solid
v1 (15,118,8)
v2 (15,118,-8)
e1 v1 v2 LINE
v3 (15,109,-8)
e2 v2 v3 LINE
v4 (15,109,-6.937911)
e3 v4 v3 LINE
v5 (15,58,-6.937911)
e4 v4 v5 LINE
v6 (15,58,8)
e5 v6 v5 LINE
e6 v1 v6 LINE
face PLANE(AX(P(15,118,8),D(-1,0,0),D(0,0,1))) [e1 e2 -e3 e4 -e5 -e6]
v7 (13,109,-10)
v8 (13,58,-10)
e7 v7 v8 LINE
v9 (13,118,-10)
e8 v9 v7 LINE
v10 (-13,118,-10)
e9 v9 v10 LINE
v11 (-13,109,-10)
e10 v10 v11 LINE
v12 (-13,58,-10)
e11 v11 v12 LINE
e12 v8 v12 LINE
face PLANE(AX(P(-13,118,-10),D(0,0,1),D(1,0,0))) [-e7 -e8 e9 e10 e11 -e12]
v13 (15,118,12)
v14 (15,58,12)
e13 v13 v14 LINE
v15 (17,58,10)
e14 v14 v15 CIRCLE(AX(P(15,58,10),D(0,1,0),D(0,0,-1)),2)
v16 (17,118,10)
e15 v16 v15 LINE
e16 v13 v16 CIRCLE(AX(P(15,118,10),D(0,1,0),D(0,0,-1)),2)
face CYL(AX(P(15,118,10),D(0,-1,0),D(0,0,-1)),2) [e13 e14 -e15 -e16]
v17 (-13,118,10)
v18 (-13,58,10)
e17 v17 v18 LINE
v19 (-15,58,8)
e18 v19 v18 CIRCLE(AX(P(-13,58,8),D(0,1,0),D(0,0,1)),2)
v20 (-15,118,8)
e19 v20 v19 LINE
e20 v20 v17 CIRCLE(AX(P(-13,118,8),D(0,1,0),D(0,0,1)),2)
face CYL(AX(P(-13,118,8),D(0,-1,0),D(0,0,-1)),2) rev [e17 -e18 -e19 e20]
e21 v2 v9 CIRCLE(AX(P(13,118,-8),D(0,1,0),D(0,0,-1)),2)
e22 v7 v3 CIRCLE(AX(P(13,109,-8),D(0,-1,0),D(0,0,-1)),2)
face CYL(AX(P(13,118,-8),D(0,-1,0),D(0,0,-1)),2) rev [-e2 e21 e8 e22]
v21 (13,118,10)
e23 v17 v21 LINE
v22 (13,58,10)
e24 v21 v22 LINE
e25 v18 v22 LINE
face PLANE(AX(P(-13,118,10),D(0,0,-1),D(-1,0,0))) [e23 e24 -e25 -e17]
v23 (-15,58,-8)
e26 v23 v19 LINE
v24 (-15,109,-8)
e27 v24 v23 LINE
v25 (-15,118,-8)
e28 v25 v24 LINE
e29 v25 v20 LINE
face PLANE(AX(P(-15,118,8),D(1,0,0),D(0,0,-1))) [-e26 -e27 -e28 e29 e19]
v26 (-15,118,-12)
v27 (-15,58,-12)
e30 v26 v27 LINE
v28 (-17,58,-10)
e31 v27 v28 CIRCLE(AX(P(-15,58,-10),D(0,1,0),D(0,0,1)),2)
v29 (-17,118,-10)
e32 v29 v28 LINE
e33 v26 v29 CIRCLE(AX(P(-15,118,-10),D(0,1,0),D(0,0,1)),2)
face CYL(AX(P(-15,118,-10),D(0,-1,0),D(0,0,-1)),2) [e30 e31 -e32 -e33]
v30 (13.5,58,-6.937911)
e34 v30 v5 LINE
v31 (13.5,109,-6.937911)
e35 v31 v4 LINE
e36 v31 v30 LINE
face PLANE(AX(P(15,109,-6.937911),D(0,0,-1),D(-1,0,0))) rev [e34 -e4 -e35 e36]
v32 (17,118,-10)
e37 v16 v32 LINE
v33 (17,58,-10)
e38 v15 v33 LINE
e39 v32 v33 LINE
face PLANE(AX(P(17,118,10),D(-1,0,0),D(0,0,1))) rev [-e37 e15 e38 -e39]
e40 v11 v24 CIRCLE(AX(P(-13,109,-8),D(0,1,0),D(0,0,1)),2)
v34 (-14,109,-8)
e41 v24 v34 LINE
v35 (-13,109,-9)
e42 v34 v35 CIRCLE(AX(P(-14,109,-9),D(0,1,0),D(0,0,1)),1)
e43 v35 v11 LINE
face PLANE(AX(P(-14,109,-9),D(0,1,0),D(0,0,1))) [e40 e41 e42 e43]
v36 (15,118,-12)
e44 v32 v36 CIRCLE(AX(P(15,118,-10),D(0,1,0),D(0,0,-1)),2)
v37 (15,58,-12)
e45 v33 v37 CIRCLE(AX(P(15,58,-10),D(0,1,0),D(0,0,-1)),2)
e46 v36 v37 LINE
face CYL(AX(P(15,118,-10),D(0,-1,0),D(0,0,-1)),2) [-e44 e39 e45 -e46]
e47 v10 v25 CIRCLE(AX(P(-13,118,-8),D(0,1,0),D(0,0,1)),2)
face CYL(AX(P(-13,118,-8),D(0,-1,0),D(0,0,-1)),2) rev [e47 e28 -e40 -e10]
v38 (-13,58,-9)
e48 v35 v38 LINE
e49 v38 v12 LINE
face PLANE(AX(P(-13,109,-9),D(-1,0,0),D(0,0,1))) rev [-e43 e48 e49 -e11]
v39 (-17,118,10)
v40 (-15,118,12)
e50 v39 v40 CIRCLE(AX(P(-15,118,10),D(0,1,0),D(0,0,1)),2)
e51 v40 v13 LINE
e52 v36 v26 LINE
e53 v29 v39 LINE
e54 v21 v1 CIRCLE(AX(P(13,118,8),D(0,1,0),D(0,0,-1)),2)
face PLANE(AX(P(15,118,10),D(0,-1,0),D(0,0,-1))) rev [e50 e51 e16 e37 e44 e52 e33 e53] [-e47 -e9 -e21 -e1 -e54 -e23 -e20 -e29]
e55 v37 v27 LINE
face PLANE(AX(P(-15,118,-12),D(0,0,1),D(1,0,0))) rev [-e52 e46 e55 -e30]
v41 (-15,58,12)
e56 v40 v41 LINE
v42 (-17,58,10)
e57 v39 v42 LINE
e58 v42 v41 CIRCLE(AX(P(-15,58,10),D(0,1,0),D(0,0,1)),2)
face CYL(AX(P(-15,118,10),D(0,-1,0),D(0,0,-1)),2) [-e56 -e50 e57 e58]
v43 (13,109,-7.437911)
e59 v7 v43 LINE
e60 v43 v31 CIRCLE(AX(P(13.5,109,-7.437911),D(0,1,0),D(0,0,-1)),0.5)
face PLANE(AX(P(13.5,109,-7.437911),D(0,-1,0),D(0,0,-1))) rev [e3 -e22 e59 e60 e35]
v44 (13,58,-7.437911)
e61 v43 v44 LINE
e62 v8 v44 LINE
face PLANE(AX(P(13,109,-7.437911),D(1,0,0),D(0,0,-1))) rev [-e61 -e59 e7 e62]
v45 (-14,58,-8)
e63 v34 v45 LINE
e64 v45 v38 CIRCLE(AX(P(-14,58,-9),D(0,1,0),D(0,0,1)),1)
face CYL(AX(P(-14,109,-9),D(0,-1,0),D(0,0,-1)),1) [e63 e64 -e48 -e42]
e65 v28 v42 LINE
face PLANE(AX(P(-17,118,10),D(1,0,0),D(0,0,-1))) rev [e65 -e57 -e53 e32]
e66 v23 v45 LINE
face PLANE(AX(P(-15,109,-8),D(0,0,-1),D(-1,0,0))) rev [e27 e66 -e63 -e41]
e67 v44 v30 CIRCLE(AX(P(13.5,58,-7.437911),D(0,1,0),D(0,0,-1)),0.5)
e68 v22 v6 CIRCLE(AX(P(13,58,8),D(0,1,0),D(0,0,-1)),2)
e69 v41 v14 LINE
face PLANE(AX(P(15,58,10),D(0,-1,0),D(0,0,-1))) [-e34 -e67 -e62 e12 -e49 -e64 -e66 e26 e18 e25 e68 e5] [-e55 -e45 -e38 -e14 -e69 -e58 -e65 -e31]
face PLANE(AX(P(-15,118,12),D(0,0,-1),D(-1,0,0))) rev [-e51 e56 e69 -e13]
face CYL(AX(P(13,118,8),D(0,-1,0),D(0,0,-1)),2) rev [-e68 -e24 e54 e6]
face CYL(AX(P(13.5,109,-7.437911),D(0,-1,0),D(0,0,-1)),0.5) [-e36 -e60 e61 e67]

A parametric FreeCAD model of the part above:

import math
import FreeCAD as App
import Part
import Sketcher

doc = App.newDocument("Part")
body = doc.addObject("PartDesign::Body", "Body")

# Sketch on XZ plane
sketch1 = body.newObject("Sketcher::SketchObject", "Sketch")
sketch1.AttachmentSupport = (doc.getObject("XZ_Plane"), [""])
sketch1.MapMode = "FlatFace"
sketch1.AttachmentOffset = App.Placement(App.Vector(0, 0, -58), App.Rotation())
sketch1.addGeometry([
    Part.LineSegment(App.Vector(-15, 12, 0), App.Vector(15, 12, 0)),  # 0
    Part.ArcOfCircle(Part.Circle(App.Vector(15, 10, 0), App.Vector(0, 0, 1), 2), math.radians(0), math.radians(90)),  # 1
    Part.LineSegment(App.Vector(17, 10, 0), App.Vector(17, -10, 0)),  # 2
    Part.ArcOfCircle(Part.Circle(App.Vector(15, -10, 0), App.Vector(0, 0, 1), 2), math.radians(-90), math.radians(0)),  # 3
    Part.LineSegment(App.Vector(15, -12, 0), App.Vector(-15, -12, 0)),  # 4
    Part.ArcOfCircle(Part.Circle(App.Vector(-15, -10, 0), App.Vector(0, 0, 1), 2), math.radians(-180), math.radians(-90)),  # 5
    Part.LineSegment(App.Vector(-17, -10, 0), App.Vector(-17, 10, 0)),  # 6
    Part.ArcOfCircle(Part.Circle(App.Vector(-15, 10, 0), App.Vector(0, 0, 1), 2), math.radians(90), math.radians(180)),  # 7
    Part.LineSegment(App.Vector(13, 10, 0), App.Vector(-13, 10, 0)),  # 8
    Part.ArcOfCircle(Part.Circle(App.Vector(-13, 8, 0), App.Vector(0, 0, 1), 2), math.radians(90), math.radians(180)),  # 9
    Part.LineSegment(App.Vector(-15, 8, 0), App.Vector(-15, -8, 0)),  # 10
    Part.ArcOfCircle(Part.Circle(App.Vector(-13, -8, 0), App.Vector(0, 0, 1), 2), math.radians(-180), math.radians(-90)),  # 11
    Part.LineSegment(App.Vector(-13, -10, 0), App.Vector(13, -10, 0)),  # 12
    Part.ArcOfCircle(Part.Circle(App.Vector(13, -8, 0), App.Vector(0, 0, 1), 2), math.radians(-90), math.radians(0)),  # 13
    Part.LineSegment(App.Vector(15, -8, 0), App.Vector(15, 8, 0)),  # 14
    Part.ArcOfCircle(Part.Circle(App.Vector(13, 8, 0), App.Vector(0, 0, 1), 2), math.radians(0), math.radians(90)),  # 15
], False)
sketch1.addConstraint([
    Sketcher.Constraint("Tangent", 0, 2, 1, 2),
    Sketcher.Constraint("Tangent", 1, 1, 2, 1),
    Sketcher.Constraint("Tangent", 2, 2, 3, 2),
    Sketcher.Constraint("Tangent", 3, 1, 4, 1),
    Sketcher.Constraint("Tangent", 4, 2, 5, 2),
    Sketcher.Constraint("Tangent", 5, 1, 6, 1),
    Sketcher.Constraint("Tangent", 6, 2, 7, 2),
    Sketcher.Constraint("Tangent", 7, 1, 0, 1),
    Sketcher.Constraint("Tangent", 8, 2, 9, 1),
    Sketcher.Constraint("Tangent", 9, 2, 10, 1),
    Sketcher.Constraint("Tangent", 10, 2, 11, 1),
    Sketcher.Constraint("Tangent", 11, 2, 12, 1),
    Sketcher.Constraint("Tangent", 12, 2, 13, 1),
    Sketcher.Constraint("Tangent", 13, 2, 14, 1),
    Sketcher.Constraint("Tangent", 14, 2, 15, 1),
    Sketcher.Constraint("Tangent", 15, 2, 8, 1),
    Sketcher.Constraint("Horizontal", 0),
    Sketcher.Constraint("Vertical", 2),
    Sketcher.Constraint("Horizontal", 4),
    Sketcher.Constraint("Vertical", 6),
    Sketcher.Constraint("Horizontal", 8),
    Sketcher.Constraint("Vertical", 10),
    Sketcher.Constraint("Horizontal", 12),
    Sketcher.Constraint("Vertical", 14),
    Sketcher.Constraint("Equal", 1, 3),
    Sketcher.Constraint("Equal", 3, 5),
    Sketcher.Constraint("Equal", 5, 7),
    Sketcher.Constraint("Equal", 7, 9),
    Sketcher.Constraint("Equal", 9, 11),
    Sketcher.Constraint("Equal", 11, 13),
    Sketcher.Constraint("Equal", 13, 15),
    Sketcher.Constraint("Symmetric", 1, 3, 5, 3, -1, 1),
    Sketcher.Constraint("Symmetric", 9, 3, 13, 3, -1, 1),
    Sketcher.Constraint("Horizontal", 6, 2, 8, 2),
    Sketcher.Constraint("Vertical", 7, 1, 9, 2),
    Sketcher.Constraint("Radius", 1, 2.0),
    Sketcher.Constraint("DistanceX", 0, 1, 0, 2, 30.0),
    Sketcher.Constraint("DistanceY", 2, 2, 2, 1, 20.0),
])
pad1 = body.newObject("PartDesign::Pad", "Pad")
pad1.Profile = sketch1
pad1.Length = 60
pad1.Reversed = True

# Sketch on XZ plane
sketch2 = body.newObject("Sketcher::SketchObject", "Sketch001")
sketch2.AttachmentSupport = (doc.getObject("XZ_Plane"), [""])
sketch2.MapMode = "FlatFace"
sketch2.AttachmentOffset = App.Placement(App.Vector(0, 0, -58), App.Rotation())
sketch2.addGeometry([
    Part.LineSegment(App.Vector(15, -10, 0), App.Vector(13, -10, 0)),  # 0
    Part.LineSegment(App.Vector(13, -10, 0), App.Vector(13, -7.437911, 0)),  # 1
    Part.ArcOfCircle(Part.Circle(App.Vector(13.5, -7.437911, 0), App.Vector(0, 0, 1), 0.5), math.radians(90), math.radians(180)),  # 2
    Part.LineSegment(App.Vector(13.5, -6.937911, 0), App.Vector(15, -6.937911, 0)),  # 3
    Part.LineSegment(App.Vector(15, -6.937911, 0), App.Vector(15, -10, 0)),  # 4
    Part.LineSegment(App.Vector(-13, -10, 0), App.Vector(-15, -10, 0)),  # 5
    Part.LineSegment(App.Vector(-15, -10, 0), App.Vector(-15, -8, 0)),  # 6
    Part.LineSegment(App.Vector(-15, -8, 0), App.Vector(-14, -8, 0)),  # 7
    Part.ArcOfCircle(Part.Circle(App.Vector(-14, -9, 0), App.Vector(0, 0, 1), 1), math.radians(0), math.radians(90)),  # 8
    Part.LineSegment(App.Vector(-13, -9, 0), App.Vector(-13, -10, 0)),  # 9
], False)
sketch2.addConstraint([
    Sketcher.Constraint("Coincident", 0, 2, 1, 1),
    Sketcher.Constraint("Tangent", 1, 2, 2, 2),
    Sketcher.Constraint("Tangent", 2, 1, 3, 1),
    Sketcher.Constraint("Coincident", 3, 2, 4, 1),
    Sketcher.Constraint("Coincident", 4, 2, 0, 1),
    Sketcher.Constraint("Coincident", 5, 2, 6, 1),
    Sketcher.Constraint("Coincident", 6, 2, 7, 1),
    Sketcher.Constraint("Tangent", 7, 2, 8, 2),
    Sketcher.Constraint("Tangent", 8, 1, 9, 1),
    Sketcher.Constraint("Coincident", 9, 2, 5, 1),
    Sketcher.Constraint("Horizontal", 0),
    Sketcher.Constraint("Vertical", 1),
    Sketcher.Constraint("Horizontal", 3),
    Sketcher.Constraint("Vertical", 4),
    Sketcher.Constraint("Horizontal", 5),
    Sketcher.Constraint("Vertical", 6),
    Sketcher.Constraint("Horizontal", 7),
    Sketcher.Constraint("Vertical", 9),
    Sketcher.Constraint("Symmetric", 4, 2, 5, 2, -2),
    Sketcher.Constraint("Equal", 0, 5),
    Sketcher.Constraint("Equal", 5, 6),
    Sketcher.Constraint("Radius", 8, 1.0),
    Sketcher.Constraint("Radius", 2, 0.5),
    Sketcher.Constraint("DistanceX", 0, 2, 0, 1, 2.0),
    Sketcher.Constraint("DistanceX", 8, 3, -1, 1, 14.0),
    Sketcher.Constraint("DistanceY", 8, 3, -1, 1, 9.0),
    Sketcher.Constraint("DistanceY", 1, 1, 1, 2, 2.562089),
])
pad2 = body.newObject("PartDesign::Pad", "Pad001")
pad2.Profile = sketch2
pad2.Length = 51
pad2.Reversed = True

doc.recompute()
